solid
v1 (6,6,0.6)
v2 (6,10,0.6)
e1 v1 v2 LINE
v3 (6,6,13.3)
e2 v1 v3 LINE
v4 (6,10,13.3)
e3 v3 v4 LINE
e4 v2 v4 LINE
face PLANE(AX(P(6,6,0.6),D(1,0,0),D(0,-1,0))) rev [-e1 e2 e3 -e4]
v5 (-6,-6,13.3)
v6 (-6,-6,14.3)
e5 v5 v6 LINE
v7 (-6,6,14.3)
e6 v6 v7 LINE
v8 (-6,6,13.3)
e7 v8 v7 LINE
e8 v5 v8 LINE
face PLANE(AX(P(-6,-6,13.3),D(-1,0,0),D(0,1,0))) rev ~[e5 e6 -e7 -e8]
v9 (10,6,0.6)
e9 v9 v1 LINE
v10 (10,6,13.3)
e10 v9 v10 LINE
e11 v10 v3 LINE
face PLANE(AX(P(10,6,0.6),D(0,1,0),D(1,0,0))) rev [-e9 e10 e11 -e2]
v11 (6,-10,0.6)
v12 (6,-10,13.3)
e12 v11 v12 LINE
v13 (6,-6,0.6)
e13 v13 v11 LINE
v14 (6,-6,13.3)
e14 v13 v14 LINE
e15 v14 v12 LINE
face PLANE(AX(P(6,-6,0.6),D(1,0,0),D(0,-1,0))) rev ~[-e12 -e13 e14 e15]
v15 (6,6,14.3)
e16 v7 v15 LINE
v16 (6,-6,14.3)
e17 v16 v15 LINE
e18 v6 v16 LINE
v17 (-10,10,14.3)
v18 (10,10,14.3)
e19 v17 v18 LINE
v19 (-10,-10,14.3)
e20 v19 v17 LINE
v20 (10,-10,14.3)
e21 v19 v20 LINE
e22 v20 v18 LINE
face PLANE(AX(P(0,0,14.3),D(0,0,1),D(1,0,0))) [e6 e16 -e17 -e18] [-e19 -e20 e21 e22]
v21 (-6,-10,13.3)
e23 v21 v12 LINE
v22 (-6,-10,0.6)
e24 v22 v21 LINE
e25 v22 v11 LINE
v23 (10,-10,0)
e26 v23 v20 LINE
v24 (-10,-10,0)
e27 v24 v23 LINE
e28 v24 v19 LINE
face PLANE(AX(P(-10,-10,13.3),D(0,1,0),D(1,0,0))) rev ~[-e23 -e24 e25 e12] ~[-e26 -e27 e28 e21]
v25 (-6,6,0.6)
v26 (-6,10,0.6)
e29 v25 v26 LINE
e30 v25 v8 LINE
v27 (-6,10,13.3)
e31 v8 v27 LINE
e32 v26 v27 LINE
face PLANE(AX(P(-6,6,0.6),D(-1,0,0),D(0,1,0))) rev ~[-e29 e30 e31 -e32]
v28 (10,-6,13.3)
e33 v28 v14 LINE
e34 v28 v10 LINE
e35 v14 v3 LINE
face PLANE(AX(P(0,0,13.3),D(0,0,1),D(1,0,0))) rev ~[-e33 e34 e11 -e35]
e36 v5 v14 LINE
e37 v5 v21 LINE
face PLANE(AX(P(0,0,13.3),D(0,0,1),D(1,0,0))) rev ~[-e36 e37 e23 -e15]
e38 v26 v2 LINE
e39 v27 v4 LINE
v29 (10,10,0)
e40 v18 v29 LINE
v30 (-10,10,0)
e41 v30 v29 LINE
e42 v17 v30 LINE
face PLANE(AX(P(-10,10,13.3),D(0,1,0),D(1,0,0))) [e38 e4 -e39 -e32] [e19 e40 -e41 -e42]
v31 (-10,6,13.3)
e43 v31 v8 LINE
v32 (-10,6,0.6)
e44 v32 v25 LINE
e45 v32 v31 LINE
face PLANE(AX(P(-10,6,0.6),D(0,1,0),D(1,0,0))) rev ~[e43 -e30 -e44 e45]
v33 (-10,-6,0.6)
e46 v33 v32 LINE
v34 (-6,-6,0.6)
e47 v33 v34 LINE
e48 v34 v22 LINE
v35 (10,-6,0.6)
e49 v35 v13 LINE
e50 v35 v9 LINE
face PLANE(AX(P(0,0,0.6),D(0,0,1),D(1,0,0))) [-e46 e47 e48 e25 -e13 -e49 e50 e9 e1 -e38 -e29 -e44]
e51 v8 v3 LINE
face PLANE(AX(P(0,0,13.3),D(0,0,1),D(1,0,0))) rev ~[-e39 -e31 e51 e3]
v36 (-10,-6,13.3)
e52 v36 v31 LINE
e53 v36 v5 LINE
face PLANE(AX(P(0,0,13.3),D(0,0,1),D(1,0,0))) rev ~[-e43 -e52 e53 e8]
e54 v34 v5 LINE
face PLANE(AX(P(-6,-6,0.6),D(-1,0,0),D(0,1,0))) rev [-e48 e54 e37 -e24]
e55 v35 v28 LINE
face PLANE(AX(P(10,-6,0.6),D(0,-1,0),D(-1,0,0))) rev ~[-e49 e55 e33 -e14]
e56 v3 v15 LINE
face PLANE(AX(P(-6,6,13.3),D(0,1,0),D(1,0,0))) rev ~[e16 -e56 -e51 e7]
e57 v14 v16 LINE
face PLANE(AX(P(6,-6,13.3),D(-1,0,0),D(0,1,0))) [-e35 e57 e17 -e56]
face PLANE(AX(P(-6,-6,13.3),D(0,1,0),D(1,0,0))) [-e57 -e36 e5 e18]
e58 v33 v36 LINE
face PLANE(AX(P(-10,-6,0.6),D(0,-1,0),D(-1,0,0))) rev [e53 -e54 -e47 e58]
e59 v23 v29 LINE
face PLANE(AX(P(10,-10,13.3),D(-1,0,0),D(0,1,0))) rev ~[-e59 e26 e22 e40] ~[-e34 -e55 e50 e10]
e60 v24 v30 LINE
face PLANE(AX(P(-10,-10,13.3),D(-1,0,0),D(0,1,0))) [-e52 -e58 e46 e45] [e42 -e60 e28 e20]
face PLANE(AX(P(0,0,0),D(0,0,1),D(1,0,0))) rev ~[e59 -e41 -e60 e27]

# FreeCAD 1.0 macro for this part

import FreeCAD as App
import Part
import Sketcher

V = App.Vector
Q = App.Units.Quantity


def add_polygon(sketch, points):
    """Adds a closed chain of lines whose ends are joined by coincident constraints."""
    first, n = sketch.GeometryCount, len(points)
    for a, b in zip(points, points[1:] + points[:1]):
        sketch.addGeometry(Part.LineSegment(App.Vector(*a, 0), App.Vector(*b, 0)), False)
    for i in range(n):
        sketch.addConstraint(Sketcher.Constraint("Coincident", first + i, 2, first + (i + 1) % n, 1))

doc = App.newDocument("Part")
body = doc.addObject("PartDesign::Body", "Body")

sketch1 = body.newObject("Sketcher::SketchObject", "Sketch")
sketch1.AttachmentSupport = (doc.getObject("XY_Plane"), [""])
sketch1.MapMode = "FlatFace"
add_polygon(sketch1, [(-10, 10), (-10, -10), (10, -10), (10, 10)])
sketch1.addConstraint([
    Sketcher.Constraint("Vertical", 0),
    Sketcher.Constraint("Horizontal", 1),
    Sketcher.Constraint("Vertical", 2),
    Sketcher.Constraint("Horizontal", 3),
    Sketcher.Constraint("Symmetric", 0, 2, 2, 2, -1, 1),
    Sketcher.Constraint("Equal", 3, 0),
    Sketcher.Constraint("DistanceX", 1, 1, 1, 2, Q("20 mm")),
])
pad1 = body.newObject("PartDesign::Pad", "Pad")
pad1.Profile = sketch1
pad1.Length = 0.6

sketch2 = body.newObject("Sketcher::SketchObject", "Sketch001")
sketch2.AttachmentSupport = (doc.getObject("XY_Plane"), [""])
sketch2.MapMode = "FlatFace"
sketch2.AttachmentOffset = App.Placement(V(0, 0, 0.6), App.Rotation())
add_polygon(sketch2, [(-10, 10), (-10, 6), (-6, 6), (-6, 10)])
sketch2.addConstraint([
    Sketcher.Constraint("Vertical", 0),
    Sketcher.Constraint("Horizontal", 1),
    Sketcher.Constraint("Vertical", 2),
    Sketcher.Constraint("Horizontal", 3),
    Sketcher.Constraint("Equal", 3, 0),
    Sketcher.Constraint("DistanceX", 1, 1, 1, 2, Q("4 mm")),
    Sketcher.Constraint("DistanceX", 0, 2, -1, 1, Q("10 mm")),
    Sketcher.Constraint("DistanceY", -1, 1, 0, 2, Q("6 mm")),
])
pad2 = body.newObject("PartDesign::Pad", "Pad001")
pad2.Profile = sketch2
pad2.Length = 12.7
body2 = doc.addObject("PartDesign::Body", "Body001")
doc.recompute()

body2.BaseFeature = body
doc.recompute()

mirroring = doc.addObject("Part::Mirroring", "Mirroring")
mirroring.Source = body
mirroring.Base = V(0, 0, 0)
mirroring.Normal = V(1, 0, 0)
body3 = doc.addObject("PartDesign::Body", "Body002")
body3.BaseFeature = mirroring
boolean = body2.newObject("PartDesign::Boolean", "Boolean")
boolean.Type = "Fuse"
boolean.addObjects([body3])
doc.recompute()
body4 = doc.addObject("PartDesign::Body", "Body003")
doc.recompute()

body4.BaseFeature = body2
doc.recompute()

mirroring2 = doc.addObject("Part::Mirroring", "Mirroring001")
mirroring2.Source = body2
mirroring2.Base = V(0, 0, 0)
mirroring2.Normal = V(0, -1, 0)
body5 = doc.addObject("PartDesign::Body", "Body004")
body5.BaseFeature = mirroring2
boolean2 = body4.newObject("PartDesign::Boolean", "Boolean001")
boolean2.Type = "Fuse"
boolean2.addObjects([body5])
doc.recompute()

sketch3 = body4.newObject("Sketcher::SketchObject", "Sketch002")
sketch3.AttachmentSupport = (doc.getObject("XY_Plane003"), [""])
sketch3.MapMode = "FlatFace"
sketch3.AttachmentOffset = App.Placement(V(0, 0, 13.3), App.Rotation())
add_polygon(sketch3, [(-10, 10), (-10, -10), (10, -10), (10, 10)])
add_polygon(sketch3, [(6, -6), (-6, -6), (-6, 6), (6, 6)])
sketch3.addConstraint([
    Sketcher.Constraint("Vertical", 0),
    Sketcher.Constraint("Horizontal", 1),
    Sketcher.Constraint("Vertical", 2),
    Sketcher.Constraint("Horizontal", 3),
    Sketcher.Constraint("Horizontal", 4),
    Sketcher.Constraint("Vertical", 5),
    Sketcher.Constraint("Horizontal", 6),
    Sketcher.Constraint("Vertical", 7),
    Sketcher.Constraint("Symmetric", 0, 2, 2, 2, -1, 1),
    Sketcher.Constraint("Symmetric", 4, 2, 6, 2, -1, 1),
    Sketcher.Constraint("Equal", 3, 0),
    Sketcher.Constraint("Equal", 6, 5),
    Sketcher.Constraint("DistanceX", 1, 1, 1, 2, Q("20 mm")),
    Sketcher.Constraint("DistanceX", 4, 2, 4, 1, Q("12 mm")),
])
pad3 = body4.newObject("PartDesign::Pad", "Pad002")
pad3.Profile = sketch3
pad3.Length = 1
mirroring.Visibility = False
mirroring2.Visibility = False

doc.recompute()
